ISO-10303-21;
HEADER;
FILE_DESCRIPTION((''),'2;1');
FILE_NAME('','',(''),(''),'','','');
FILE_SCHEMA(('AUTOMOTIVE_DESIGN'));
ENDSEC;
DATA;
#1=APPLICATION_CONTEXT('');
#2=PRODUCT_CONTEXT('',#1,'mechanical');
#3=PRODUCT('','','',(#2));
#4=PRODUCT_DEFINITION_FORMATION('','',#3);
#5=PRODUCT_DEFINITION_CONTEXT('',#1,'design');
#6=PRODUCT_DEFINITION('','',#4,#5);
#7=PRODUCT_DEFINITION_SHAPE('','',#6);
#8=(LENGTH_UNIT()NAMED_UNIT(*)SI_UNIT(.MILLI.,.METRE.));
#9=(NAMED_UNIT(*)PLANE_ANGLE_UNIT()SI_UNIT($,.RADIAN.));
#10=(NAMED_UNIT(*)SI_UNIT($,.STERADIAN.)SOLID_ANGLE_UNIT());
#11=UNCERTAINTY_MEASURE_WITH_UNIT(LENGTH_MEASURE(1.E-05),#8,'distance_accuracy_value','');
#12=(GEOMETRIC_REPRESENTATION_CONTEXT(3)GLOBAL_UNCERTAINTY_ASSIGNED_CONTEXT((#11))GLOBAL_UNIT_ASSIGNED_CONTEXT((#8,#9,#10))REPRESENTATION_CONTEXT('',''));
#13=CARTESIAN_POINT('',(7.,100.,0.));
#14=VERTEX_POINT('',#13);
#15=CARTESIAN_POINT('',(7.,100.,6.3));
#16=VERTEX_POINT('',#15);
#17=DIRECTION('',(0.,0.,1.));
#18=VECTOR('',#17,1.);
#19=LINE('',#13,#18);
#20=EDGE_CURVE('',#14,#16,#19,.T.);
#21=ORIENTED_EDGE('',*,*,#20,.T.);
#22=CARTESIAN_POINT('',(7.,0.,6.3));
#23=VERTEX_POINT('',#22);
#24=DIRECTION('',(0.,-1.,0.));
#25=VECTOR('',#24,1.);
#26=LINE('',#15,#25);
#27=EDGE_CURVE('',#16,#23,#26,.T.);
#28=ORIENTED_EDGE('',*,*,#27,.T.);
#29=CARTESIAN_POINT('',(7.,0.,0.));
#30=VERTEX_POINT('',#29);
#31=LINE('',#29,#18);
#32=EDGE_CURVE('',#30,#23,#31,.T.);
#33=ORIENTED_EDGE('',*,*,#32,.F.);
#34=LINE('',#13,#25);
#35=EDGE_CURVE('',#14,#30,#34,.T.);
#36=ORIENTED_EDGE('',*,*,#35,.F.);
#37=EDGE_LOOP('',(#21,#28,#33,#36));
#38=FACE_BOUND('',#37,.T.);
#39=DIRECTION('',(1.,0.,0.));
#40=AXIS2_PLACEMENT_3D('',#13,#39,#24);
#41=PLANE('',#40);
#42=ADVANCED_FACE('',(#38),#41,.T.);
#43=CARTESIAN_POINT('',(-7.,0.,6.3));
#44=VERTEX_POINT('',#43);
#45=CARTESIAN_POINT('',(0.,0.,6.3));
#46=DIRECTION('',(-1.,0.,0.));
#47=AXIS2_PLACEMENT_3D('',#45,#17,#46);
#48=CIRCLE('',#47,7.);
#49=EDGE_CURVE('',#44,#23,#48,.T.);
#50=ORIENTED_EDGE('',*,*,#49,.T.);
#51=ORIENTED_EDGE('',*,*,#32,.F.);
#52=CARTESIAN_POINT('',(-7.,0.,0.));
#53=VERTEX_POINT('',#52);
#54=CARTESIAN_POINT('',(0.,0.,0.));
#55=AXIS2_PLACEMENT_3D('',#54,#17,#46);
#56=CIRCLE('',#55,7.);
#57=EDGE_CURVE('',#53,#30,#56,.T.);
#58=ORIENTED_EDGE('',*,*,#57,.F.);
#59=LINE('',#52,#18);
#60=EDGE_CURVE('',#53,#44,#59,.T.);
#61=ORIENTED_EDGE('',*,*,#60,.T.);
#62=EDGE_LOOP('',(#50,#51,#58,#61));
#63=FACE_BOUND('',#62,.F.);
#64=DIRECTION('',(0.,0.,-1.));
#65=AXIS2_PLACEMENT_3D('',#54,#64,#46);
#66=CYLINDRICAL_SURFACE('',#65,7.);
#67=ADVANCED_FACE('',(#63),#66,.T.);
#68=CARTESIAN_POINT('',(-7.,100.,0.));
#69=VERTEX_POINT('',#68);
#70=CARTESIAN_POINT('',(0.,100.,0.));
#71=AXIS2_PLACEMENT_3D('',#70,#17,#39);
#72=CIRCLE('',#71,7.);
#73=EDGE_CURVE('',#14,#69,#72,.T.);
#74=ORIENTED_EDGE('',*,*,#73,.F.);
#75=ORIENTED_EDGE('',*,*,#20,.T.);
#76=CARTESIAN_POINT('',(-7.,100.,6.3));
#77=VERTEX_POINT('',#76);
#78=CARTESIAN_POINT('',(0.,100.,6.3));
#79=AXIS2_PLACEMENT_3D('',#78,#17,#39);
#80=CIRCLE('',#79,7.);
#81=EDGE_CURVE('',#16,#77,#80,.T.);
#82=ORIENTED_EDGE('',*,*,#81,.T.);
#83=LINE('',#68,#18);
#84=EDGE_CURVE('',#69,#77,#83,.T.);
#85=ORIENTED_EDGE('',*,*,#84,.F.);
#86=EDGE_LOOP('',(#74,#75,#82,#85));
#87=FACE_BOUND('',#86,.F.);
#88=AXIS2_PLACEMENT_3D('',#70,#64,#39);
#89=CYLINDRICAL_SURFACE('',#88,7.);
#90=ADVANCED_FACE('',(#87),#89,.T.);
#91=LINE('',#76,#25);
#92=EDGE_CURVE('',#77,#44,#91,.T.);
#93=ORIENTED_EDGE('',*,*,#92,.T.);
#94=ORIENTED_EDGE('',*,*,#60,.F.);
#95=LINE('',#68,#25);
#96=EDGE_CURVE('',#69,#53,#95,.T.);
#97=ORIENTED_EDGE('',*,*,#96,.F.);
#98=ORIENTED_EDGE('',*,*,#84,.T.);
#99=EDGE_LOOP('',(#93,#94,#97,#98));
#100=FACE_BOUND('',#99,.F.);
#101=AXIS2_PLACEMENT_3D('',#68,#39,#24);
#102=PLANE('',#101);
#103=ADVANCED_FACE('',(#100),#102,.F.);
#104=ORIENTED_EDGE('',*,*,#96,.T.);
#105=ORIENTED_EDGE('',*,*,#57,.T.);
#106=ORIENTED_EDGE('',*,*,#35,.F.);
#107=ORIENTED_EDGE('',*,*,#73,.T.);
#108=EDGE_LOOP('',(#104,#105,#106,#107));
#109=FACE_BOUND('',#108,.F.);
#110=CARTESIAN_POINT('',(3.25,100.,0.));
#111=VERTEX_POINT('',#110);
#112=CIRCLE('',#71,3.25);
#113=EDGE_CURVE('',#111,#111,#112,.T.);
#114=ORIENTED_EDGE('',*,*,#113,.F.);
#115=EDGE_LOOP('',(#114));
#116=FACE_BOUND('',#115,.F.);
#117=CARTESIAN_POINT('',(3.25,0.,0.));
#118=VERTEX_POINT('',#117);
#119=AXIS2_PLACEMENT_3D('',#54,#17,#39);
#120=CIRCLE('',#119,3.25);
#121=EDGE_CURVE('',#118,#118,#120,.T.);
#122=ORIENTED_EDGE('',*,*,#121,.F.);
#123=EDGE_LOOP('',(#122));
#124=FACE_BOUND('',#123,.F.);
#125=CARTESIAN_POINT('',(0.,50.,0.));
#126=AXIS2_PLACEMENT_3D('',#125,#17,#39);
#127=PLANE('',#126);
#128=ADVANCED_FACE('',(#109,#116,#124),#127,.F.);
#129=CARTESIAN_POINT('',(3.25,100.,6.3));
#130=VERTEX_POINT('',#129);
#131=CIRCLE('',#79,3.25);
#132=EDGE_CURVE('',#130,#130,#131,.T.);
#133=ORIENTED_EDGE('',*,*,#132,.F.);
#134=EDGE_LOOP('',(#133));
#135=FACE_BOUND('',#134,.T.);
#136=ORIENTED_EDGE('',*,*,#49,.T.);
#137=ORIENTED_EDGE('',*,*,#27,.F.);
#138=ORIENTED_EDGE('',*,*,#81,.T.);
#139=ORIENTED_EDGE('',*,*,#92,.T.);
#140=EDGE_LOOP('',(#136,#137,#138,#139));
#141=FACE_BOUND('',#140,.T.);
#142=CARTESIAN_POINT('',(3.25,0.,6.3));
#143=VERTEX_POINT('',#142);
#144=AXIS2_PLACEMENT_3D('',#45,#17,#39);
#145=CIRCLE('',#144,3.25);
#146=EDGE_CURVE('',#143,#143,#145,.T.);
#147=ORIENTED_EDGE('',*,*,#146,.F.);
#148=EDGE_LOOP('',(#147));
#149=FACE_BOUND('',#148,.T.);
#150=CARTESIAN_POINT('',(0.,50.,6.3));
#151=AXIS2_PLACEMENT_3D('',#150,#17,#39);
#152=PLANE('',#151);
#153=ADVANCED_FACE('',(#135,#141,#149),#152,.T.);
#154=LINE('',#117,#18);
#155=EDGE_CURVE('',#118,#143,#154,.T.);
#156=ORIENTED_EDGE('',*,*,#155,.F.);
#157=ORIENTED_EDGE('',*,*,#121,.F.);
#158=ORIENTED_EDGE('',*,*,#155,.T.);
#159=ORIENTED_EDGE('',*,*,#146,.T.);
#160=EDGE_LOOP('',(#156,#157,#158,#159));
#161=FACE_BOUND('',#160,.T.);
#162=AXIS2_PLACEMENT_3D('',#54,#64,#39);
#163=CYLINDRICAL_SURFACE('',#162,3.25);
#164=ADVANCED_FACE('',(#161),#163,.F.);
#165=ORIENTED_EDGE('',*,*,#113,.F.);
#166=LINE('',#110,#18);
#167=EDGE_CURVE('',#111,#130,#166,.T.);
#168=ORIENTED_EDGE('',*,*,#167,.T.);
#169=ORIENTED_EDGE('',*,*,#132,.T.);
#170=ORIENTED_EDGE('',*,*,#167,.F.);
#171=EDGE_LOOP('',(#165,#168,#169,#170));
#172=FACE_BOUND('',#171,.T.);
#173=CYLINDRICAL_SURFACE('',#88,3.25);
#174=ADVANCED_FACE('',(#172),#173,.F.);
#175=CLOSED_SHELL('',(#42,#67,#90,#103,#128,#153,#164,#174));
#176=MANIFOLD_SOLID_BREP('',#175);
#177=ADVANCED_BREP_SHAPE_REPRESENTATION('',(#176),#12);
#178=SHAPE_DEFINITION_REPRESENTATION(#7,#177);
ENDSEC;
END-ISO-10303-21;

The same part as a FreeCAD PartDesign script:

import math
import FreeCAD as App
import Part
import Sketcher

V = App.Vector

doc = App.newDocument("Part")
body = doc.addObject("PartDesign::Body", "Body")

sketch1 = doc.addObject("Sketcher::SketchObject", "Sketch")
body.addObject(sketch1)
sketch1.AttachmentSupport = (doc.XY_Plane, [""])
sketch1.MapMode = "FlatFace"
sketch1.addGeometry(Part.ArcOfCircle(Part.Circle(V(0, 100, 0), V(0, 0, 1), 7), math.radians(0), math.radians(180)), False)
sketch1.addGeometry(Part.LineSegment(V(-7, 100, 0), V(-7, 0, 0)), False)
sketch1.addGeometry(Part.ArcOfCircle(Part.Circle(V(0, 0, 0), V(0, 0, 1), 7), math.radians(180), math.radians(360)), False)
sketch1.addGeometry(Part.LineSegment(V(7, 0, 0), V(7, 100, 0)), False)
sketch1.addGeometry(Part.Circle(V(0, 0, 0), V(0, 0, 1), 3.2), False)
sketch1.addGeometry(Part.Circle(V(0, 100, 0), V(0, 0, 1), 3.2), False)
sketch1.addConstraint(Sketcher.Constraint("Tangent", 0, 2, 1, 1))
sketch1.addConstraint(Sketcher.Constraint("Tangent", 1, 2, 2, 1))
sketch1.addConstraint(Sketcher.Constraint("Tangent", 2, 2, 3, 1))
sketch1.addConstraint(Sketcher.Constraint("Tangent", 3, 2, 0, 1))
sketch1.addConstraint(Sketcher.Constraint("Vertical", 1))
sketch1.addConstraint(Sketcher.Constraint("Vertical", 3))
sketch1.addConstraint(Sketcher.Constraint("Coincident", 2, 3, -1, 1))
sketch1.addConstraint(Sketcher.Constraint("Coincident", 4, 3, -1, 1))
sketch1.addConstraint(Sketcher.Constraint("Coincident", 5, 3, 0, 3))
sketch1.addConstraint(Sketcher.Constraint("Equal", 4, 5))
sketch1.addConstraint(Sketcher.Constraint("Radius", 0, 7.0))
sketch1.addConstraint(Sketcher.Constraint("Diameter", 4, 6.5))
sketch1.addConstraint(Sketcher.Constraint("DistanceY", 1, 2, 1, 1, 100.0))
pad1 = doc.addObject("PartDesign::Pad", "Pad")
body.addObject(pad1)
pad1.Profile = sketch1
pad1.Length = 6.3

doc.recompute()
